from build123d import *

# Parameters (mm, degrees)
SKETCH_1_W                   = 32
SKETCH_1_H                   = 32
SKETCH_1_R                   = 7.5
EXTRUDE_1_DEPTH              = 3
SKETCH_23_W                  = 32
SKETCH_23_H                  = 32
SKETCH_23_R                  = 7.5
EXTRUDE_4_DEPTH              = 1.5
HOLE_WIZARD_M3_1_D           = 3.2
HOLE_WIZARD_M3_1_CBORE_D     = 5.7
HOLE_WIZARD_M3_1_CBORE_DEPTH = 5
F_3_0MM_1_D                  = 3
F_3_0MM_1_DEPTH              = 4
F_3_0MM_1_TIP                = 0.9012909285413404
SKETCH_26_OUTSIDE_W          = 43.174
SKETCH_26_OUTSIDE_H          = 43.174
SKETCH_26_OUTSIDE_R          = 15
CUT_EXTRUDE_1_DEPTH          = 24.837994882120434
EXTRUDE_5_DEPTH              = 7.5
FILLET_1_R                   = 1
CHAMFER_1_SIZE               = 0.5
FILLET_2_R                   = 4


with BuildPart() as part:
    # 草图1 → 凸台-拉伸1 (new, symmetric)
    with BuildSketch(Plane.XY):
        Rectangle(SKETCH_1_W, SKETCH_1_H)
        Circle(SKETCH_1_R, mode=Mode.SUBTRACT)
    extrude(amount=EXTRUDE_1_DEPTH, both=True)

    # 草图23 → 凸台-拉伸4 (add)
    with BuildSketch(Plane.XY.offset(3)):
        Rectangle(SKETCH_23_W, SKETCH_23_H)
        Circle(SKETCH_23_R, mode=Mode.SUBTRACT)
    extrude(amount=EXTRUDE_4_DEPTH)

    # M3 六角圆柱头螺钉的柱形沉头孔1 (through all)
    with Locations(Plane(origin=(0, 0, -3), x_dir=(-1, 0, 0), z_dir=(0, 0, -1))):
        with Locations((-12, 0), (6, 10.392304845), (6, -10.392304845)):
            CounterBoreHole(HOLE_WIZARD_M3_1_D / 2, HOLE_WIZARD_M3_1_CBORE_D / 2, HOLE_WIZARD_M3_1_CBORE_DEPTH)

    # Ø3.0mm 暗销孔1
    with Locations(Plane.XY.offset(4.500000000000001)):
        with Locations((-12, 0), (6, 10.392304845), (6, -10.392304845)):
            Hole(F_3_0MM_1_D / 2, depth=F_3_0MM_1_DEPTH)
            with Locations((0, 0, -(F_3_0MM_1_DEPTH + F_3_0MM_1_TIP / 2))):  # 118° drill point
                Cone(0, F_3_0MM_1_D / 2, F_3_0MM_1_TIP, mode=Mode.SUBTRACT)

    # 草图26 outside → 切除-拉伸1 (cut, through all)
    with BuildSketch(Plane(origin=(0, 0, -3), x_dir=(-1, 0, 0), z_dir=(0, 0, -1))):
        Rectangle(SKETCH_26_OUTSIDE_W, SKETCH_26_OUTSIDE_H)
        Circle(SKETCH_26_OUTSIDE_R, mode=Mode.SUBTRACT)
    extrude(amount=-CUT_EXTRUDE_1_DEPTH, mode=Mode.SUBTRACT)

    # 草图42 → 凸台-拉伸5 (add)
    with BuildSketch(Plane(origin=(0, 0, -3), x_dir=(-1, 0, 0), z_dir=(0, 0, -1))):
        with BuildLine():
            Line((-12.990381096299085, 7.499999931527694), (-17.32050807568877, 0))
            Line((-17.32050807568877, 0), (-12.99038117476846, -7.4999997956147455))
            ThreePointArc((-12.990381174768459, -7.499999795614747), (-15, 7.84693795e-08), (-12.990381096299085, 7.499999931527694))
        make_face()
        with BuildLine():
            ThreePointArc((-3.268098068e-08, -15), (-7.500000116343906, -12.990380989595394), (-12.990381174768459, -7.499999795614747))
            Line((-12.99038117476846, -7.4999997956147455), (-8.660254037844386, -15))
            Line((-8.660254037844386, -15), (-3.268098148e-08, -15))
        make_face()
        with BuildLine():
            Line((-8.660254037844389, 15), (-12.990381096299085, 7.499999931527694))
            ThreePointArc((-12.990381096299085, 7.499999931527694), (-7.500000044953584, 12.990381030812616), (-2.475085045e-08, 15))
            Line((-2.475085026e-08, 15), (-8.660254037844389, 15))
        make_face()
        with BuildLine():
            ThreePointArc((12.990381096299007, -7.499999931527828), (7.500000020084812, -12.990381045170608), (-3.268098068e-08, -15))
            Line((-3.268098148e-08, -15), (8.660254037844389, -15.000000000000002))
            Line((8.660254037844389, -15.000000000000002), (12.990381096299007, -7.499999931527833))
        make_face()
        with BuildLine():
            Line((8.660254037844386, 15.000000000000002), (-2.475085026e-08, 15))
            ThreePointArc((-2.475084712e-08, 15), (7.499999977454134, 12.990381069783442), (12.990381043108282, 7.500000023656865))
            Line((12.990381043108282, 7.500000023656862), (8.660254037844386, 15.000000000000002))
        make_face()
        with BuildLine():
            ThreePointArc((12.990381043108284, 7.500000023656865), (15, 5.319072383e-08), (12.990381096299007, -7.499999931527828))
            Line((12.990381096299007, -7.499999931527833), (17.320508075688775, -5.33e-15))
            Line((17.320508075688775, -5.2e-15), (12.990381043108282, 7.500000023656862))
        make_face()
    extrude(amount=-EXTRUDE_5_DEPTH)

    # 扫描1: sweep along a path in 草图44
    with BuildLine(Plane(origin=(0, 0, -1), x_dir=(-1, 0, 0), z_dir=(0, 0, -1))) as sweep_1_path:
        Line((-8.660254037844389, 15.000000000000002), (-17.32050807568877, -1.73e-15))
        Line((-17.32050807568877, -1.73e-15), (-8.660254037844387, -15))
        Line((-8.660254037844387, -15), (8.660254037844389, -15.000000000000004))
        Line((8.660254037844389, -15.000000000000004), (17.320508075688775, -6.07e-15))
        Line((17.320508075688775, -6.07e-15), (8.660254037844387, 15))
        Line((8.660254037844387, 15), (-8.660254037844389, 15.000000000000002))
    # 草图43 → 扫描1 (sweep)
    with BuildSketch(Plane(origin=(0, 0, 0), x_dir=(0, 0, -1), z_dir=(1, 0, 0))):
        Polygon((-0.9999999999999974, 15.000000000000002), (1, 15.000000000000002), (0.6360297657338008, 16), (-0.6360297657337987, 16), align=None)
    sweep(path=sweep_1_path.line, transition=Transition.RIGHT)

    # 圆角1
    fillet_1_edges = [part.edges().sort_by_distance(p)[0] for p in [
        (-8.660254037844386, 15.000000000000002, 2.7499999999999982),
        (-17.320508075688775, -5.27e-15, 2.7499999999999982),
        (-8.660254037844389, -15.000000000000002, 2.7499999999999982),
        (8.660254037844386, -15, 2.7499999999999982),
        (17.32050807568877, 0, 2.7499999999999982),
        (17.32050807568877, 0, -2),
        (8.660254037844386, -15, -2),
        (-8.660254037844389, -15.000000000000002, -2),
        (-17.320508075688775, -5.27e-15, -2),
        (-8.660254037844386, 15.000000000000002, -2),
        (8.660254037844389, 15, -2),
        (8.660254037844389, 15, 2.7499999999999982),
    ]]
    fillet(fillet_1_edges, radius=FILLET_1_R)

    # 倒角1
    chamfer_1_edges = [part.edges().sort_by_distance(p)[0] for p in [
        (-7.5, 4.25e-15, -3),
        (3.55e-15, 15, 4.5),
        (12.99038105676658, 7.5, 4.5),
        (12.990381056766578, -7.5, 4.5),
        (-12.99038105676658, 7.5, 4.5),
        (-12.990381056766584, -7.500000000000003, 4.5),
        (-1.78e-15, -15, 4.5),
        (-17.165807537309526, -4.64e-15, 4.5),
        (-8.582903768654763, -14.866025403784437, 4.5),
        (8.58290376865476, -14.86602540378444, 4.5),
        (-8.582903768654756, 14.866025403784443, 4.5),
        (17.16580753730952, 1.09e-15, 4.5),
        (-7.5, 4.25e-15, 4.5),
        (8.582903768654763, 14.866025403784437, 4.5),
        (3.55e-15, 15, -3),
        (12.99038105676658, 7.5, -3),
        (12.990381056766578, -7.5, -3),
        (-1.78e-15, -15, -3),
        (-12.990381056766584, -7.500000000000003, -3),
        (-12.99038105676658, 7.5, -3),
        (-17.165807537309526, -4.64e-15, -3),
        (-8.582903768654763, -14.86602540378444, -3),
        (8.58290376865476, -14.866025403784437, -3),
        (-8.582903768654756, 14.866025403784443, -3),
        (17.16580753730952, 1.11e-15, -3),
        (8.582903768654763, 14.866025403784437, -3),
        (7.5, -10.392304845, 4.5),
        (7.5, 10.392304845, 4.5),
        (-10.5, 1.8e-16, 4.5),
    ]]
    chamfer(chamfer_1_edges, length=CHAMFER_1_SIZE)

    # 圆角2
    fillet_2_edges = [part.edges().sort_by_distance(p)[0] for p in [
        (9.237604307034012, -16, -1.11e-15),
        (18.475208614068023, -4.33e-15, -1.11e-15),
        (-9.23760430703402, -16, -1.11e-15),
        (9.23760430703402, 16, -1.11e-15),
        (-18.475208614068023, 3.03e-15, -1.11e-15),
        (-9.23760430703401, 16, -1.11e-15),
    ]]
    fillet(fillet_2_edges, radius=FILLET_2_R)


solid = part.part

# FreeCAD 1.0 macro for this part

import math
import FreeCAD as App
import Part
import Sketcher
from FreeCAD import Vector
Q = App.Units.Quantity


def edges_at(feature, points):
    """Names of the edges that pass closest to the given points."""
    edges = feature.Shape.Edges
    near = lambda p: min(range(len(edges)), key=lambda i: edges[i].distToShape(Part.Vertex(*p))[0])
    return sorted({f"Edge{near(p) + 1}" for p in points})

doc = App.newDocument("Part")
body = doc.addObject("PartDesign::Body", "Body")

# Sketch on XY plane
sketch1 = body.newObject("Sketcher::SketchObject", "Sketch")
sketch1.AttachmentSupport = (doc.getObject("XY_Plane"), [""])
sketch1.MapMode = "FlatFace"
sketch1.addGeometry(Part.LineSegment(Vector(-16, 16, 0), Vector(-16, -16, 0)), False)
sketch1.addGeometry(Part.LineSegment(Vector(-16, -16, 0), Vector(16, -16, 0)), False)
sketch1.addGeometry(Part.LineSegment(Vector(16, -16, 0), Vector(16, 16, 0)), False)
sketch1.addGeometry(Part.LineSegment(Vector(16, 16, 0), Vector(-16, 16, 0)), False)
sketch1.addGeometry(Part.Circle(Vector(0, 0, 0), Vector(0, 0, 1), 8), False)
sketch1.addConstraint(Sketcher.Constraint("Coincident", 0, 2, 1, 1))
sketch1.addConstraint(Sketcher.Constraint("Coincident", 1, 2, 2, 1))
sketch1.addConstraint(Sketcher.Constraint("Coincident", 2, 2, 3, 1))
sketch1.addConstraint(Sketcher.Constraint("Coincident", 3, 2, 0, 1))
sketch1.addConstraint(Sketcher.Constraint("Vertical", 0))
sketch1.addConstraint(Sketcher.Constraint("Horizontal", 1))
sketch1.addConstraint(Sketcher.Constraint("Vertical", 2))
sketch1.addConstraint(Sketcher.Constraint("Horizontal", 3))
sketch1.addConstraint(Sketcher.Constraint("Coincident", 4, 3, -1, 1))
sketch1.addConstraint(Sketcher.Constraint("Symmetric", 0, 2, 2, 2, -1, 1))
sketch1.addConstraint(Sketcher.Constraint("Equal", 3, 0))
sketch1.addConstraint(Sketcher.Constraint("Diameter", 4, 15.0))
sketch1.addConstraint(Sketcher.Constraint("DistanceX", 1, 1, 1, 2, 32.0))
pad1 = body.newObject("PartDesign::Pad", "Pad")
pad1.Profile = sketch1
pad1.Length = 6
pad1.Midplane = True

# Sketch on XY plane
sketch2 = body.newObject("Sketcher::SketchObject", "Sketch001")
sketch2.AttachmentSupport = (doc.getObject("XY_Plane"), [""])
sketch2.MapMode = "FlatFace"
sketch2.AttachmentOffset = App.Placement(Vector(0, 0, 3), App.Rotation())
sketch2.addGeometry(Part.LineSegment(Vector(-16, 16, 0), Vector(-16, -16, 0)), False)
sketch2.addGeometry(Part.LineSegment(Vector(-16, -16, 0), Vector(16, -16, 0)), False)
sketch2.addGeometry(Part.LineSegment(Vector(16, -16, 0), Vector(16, 16, 0)), False)
sketch2.addGeometry(Part.LineSegment(Vector(16, 16, 0), Vector(-16, 16, 0)), False)
sketch2.addGeometry(Part.Circle(Vector(0, 0, 0), Vector(0, 0, 1), 8), False)
sketch2.addConstraint(Sketcher.Constraint("Coincident", 0, 2, 1, 1))
sketch2.addConstraint(Sketcher.Constraint("Coincident", 1, 2, 2, 1))
sketch2.addConstraint(Sketcher.Constraint("Coincident", 2, 2, 3, 1))
sketch2.addConstraint(Sketcher.Constraint("Coincident", 3, 2, 0, 1))
sketch2.addConstraint(Sketcher.Constraint("Vertical", 0))
sketch2.addConstraint(Sketcher.Constraint("Horizontal", 1))
sketch2.addConstraint(Sketcher.Constraint("Vertical", 2))
sketch2.addConstraint(Sketcher.Constraint("Horizontal", 3))
sketch2.addConstraint(Sketcher.Constraint("Coincident", 4, 3, -1, 1))
sketch2.addConstraint(Sketcher.Constraint("Symmetric", 0, 2, 2, 2, -1, 1))
sketch2.addConstraint(Sketcher.Constraint("Equal", 3, 0))
sketch2.addConstraint(Sketcher.Constraint("Diameter", 4, 15.0))
sketch2.addConstraint(Sketcher.Constraint("DistanceX", 1, 1, 1, 2, 32.0))
pad2 = body.newObject("PartDesign::Pad", "Pad001")
pad2.Profile = sketch2
pad2.Length = 1.5

# Sketch on XY plane
sketch3 = body.newObject("Sketcher::SketchObject", "Sketch002")
sketch3.AttachmentSupport = (doc.getObject("XY_Plane"), [""])
sketch3.MapMode = "FlatFace"
sketch3.AttachmentOffset = App.Placement(Vector(0, 0, -3), App.Rotation())
sketch3.addGeometry(Part.Circle(Vector(12, 0, 0), Vector(0, 0, 1), 1.6), False)
sketch3.addGeometry(Part.Circle(Vector(-6, 10.4, 0), Vector(0, 0, 1), 1.6), False)
sketch3.addGeometry(Part.Circle(Vector(-6, -10.4, 0), Vector(0, 0, 1), 1.6), False)
sketch3.addConstraint(Sketcher.Constraint("Equal", 0, 1))
sketch3.addConstraint(Sketcher.Constraint("Equal", 1, 2))
sketch3.addConstraint(Sketcher.Constraint("Symmetric", 1, 3, 2, 3, -1))
sketch3.addConstraint(Sketcher.Constraint("PointOnObject", 0, 3, -1))
sketch3.addConstraint(Sketcher.Constraint("Diameter", 0, 3.2))
sketch3.addConstraint(Sketcher.Constraint("DistanceX", -1, 1, 0, 3, 12.0))
sketch3.addConstraint(Sketcher.Constraint("DistanceX", 1, 3, -1, 1, 6.0))
sketch3.addConstraint(Sketcher.Constraint("DistanceY", 2, 3, 1, 3, 20.78461))
doc.recompute()
hole = body.newObject("PartDesign::Hole", "Hole")
hole.Profile = sketch3
hole.ThreadType = "None"
hole.Diameter = 3.2
hole.DepthType = "ThroughAll"
hole.HoleCutType = "Counterbore"
hole.HoleCutDiameter = 5.7
hole.HoleCutDepth = 5
hole.Reversed = True

# Sketch on XY plane
sketch4 = body.newObject("Sketcher::SketchObject", "Sketch003")
sketch4.AttachmentSupport = (doc.getObject("XY_Plane"), [""])
sketch4.MapMode = "FlatFace"
sketch4.AttachmentOffset = App.Placement(Vector(0, 0, 4.5), App.Rotation())
sketch4.addGeometry(Part.Circle(Vector(-12, 0, 0), Vector(0, 0, 1), 1.5), False)
sketch4.addGeometry(Part.Circle(Vector(6, 10.4, 0), Vector(0, 0, 1), 1.5), False)
sketch4.addGeometry(Part.Circle(Vector(6, -10.4, 0), Vector(0, 0, 1), 1.5), False)
sketch4.addConstraint(Sketcher.Constraint("Equal", 0, 1))
sketch4.addConstraint(Sketcher.Constraint("Equal", 1, 2))
sketch4.addConstraint(Sketcher.Constraint("Symmetric", 1, 3, 2, 3, -1))
sketch4.addConstraint(Sketcher.Constraint("PointOnObject", 0, 3, -1))
sketch4.addConstraint(Sketcher.Constraint("Diameter", 0, 3.0))
sketch4.addConstraint(Sketcher.Constraint("DistanceX", 0, 3, -1, 1, 12.0))
sketch4.addConstraint(Sketcher.Constraint("DistanceX", -1, 1, 1, 3, 6.0))
sketch4.addConstraint(Sketcher.Constraint("DistanceY", 2, 3, 1, 3, 20.78461))
doc.recompute()
hole2 = body.newObject("PartDesign::Hole", "Hole001")
hole2.Profile = sketch4
hole2.ThreadType = "None"
hole2.Diameter = 3
hole2.DepthType = "Dimension"
hole2.Depth = 4
hole2.DrillPoint = "Angled"
hole2.DrillPointAngle = 118

# Sketch on XY plane
sketch5 = body.newObject("Sketcher::SketchObject", "Sketch004")
sketch5.AttachmentSupport = (doc.getObject("XY_Plane"), [""])
sketch5.MapMode = "FlatFace"
sketch5.AttachmentOffset = App.Placement(Vector(0, 0, -3), App.Rotation())
sketch5.addGeometry(Part.LineSegment(Vector(22, 22, 0), Vector(22, -22, 0)), False)
sketch5.addGeometry(Part.LineSegment(Vector(22, -22, 0), Vector(-22, -22, 0)), False)
sketch5.addGeometry(Part.LineSegment(Vector(-22, -22, 0), Vector(-22, 22, 0)), False)
sketch5.addGeometry(Part.LineSegment(Vector(-22, 22, 0), Vector(22, 22, 0)), False)
sketch5.addGeometry(Part.Circle(Vector(0, 0, 0), Vector(0, 0, 1), 15), False)
sketch5.addConstraint(Sketcher.Constraint("Coincident", 0, 2, 1, 1))
sketch5.addConstraint(Sketcher.Constraint("Coincident", 1, 2, 2, 1))
sketch5.addConstraint(Sketcher.Constraint("Coincident", 2, 2, 3, 1))
sketch5.addConstraint(Sketcher.Constraint("Coincident", 3, 2, 0, 1))
sketch5.addConstraint(Sketcher.Constraint("Vertical", 0))
sketch5.addConstraint(Sketcher.Constraint("Horizontal", 1))
sketch5.addConstraint(Sketcher.Constraint("Vertical", 2))
sketch5.addConstraint(Sketcher.Constraint("Horizontal", 3))
sketch5.addConstraint(Sketcher.Constraint("Coincident", 4, 3, -1, 1))
sketch5.addConstraint(Sketcher.Constraint("Symmetric", 0, 2, 2, 2, -1, 1))
sketch5.addConstraint(Sketcher.Constraint("Equal", 3, 0))
sketch5.addConstraint(Sketcher.Constraint("Diameter", 4, 30.0))
sketch5.addConstraint(Sketcher.Constraint("DistanceX", 1, 2, 1, 1, 43.174))
pocket1 = body.newObject("PartDesign::Pocket", "Pocket")
pocket1.Profile = sketch5
pocket1.Type = "ThroughAll"
pocket1.Reversed = True

# Sketch on XY plane
sketch6 = body.newObject("Sketcher::SketchObject", "Sketch005")
sketch6.AttachmentSupport = (doc.getObject("XY_Plane"), [""])
sketch6.MapMode = "FlatFace"
sketch6.AttachmentOffset = App.Placement(Vector(0, 0, -3), App.Rotation())
sketch6.addGeometry(Part.LineSegment(Vector(13, 7, 0), Vector(17, 0, 0)), False)
sketch6.addGeometry(Part.LineSegment(Vector(17, 0, 0), Vector(13, -7, 0)), False)
sketch6.addGeometry(Part.ArcOfCircle(Part.Circle(Vector(0, 0, 0), Vector(0, 0, 1), 15), math.radians(-30), math.radians(30)), False)
sketch6.addGeometry(Part.ArcOfCircle(Part.Circle(Vector(0, 0, 0), Vector(0, 0, 1), 15), math.radians(-90), math.radians(-30)), False)
sketch6.addGeometry(Part.LineSegment(Vector(13, -7, 0), Vector(9, -15, 0)), False)
sketch6.addGeometry(Part.LineSegment(Vector(9, -15, 0), Vector(0, -15, 0)), False)
sketch6.addGeometry(Part.LineSegment(Vector(9, 15, 0), Vector(13, 7, 0)), False)
sketch6.addGeometry(Part.ArcOfCircle(Part.Circle(Vector(0, 0, 0), Vector(0, 0, 1), 15), math.radians(30), math.radians(90)), False)
sketch6.addGeometry(Part.LineSegment(Vector(0, 15, 0), Vector(9, 15, 0)), False)
sketch6.addGeometry(Part.ArcOfCircle(Part.Circle(Vector(0, 0, 0), Vector(0, 0, 1), 15), math.radians(-150), math.radians(-90)), False)
sketch6.addGeometry(Part.LineSegment(Vector(0, -15, 0), Vector(-9, -15, 0)), False)
sketch6.addGeometry(Part.LineSegment(Vector(-9, -15, 0), Vector(-13, -7, 0)), False)
sketch6.addGeometry(Part.LineSegment(Vector(-9, 15, 0), Vector(0, 15, 0)), False)
sketch6.addGeometry(Part.ArcOfCircle(Part.Circle(Vector(0, 0, 0), Vector(0, 0, 1), 15), math.radians(90), math.radians(150)), False)
sketch6.addGeometry(Part.LineSegment(Vector(-13, 8, 0), Vector(-9, 15, 0)), False)
sketch6.addGeometry(Part.ArcOfCircle(Part.Circle(Vector(0, 0, 0), Vector(0, 0, 1), 15), math.radians(150), math.radians(210)), False)
sketch6.addGeometry(Part.LineSegment(Vector(-13, -7, 0), Vector(-17, 0, 0)), False)
sketch6.addGeometry(Part.LineSegment(Vector(-17, 0, 0), Vector(-13, 8, 0)), False)
sketch6.addConstraint(Sketcher.Constraint("Coincident", 0, 2, 1, 1))
sketch6.addConstraint(Sketcher.Constraint("Tangent", 1, 2, 2, 1))
sketch6.addConstraint(Sketcher.Constraint("Tangent", 2, 2, 0, 1))
sketch6.addConstraint(Sketcher.Constraint("Tangent", 3, 2, 4, 1))
sketch6.addConstraint(Sketcher.Constraint("Coincident", 4, 2, 5, 1))
sketch6.addConstraint(Sketcher.Constraint("Tangent", 5, 2, 3, 1))
sketch6.addConstraint(Sketcher.Constraint("Tangent", 6, 2, 7, 1))
sketch6.addConstraint(Sketcher.Constraint("Tangent", 7, 2, 8, 1))
sketch6.addConstraint(Sketcher.Constraint("Coincident", 8, 2, 6, 1))
sketch6.addConstraint(Sketcher.Constraint("Tangent", 9, 2, 10, 1))
sketch6.addConstraint(Sketcher.Constraint("Coincident", 10, 2, 11, 1))
sketch6.addConstraint(Sketcher.Constraint("Tangent", 11, 2, 9, 1))
sketch6.addConstraint(Sketcher.Constraint("Tangent", 12, 2, 13, 1))
sketch6.addConstraint(Sketcher.Constraint("Tangent", 13, 2, 14, 1))
sketch6.addConstraint(Sketcher.Constraint("Coincident", 14, 2, 12, 1))
sketch6.addConstraint(Sketcher.Constraint("Tangent", 15, 2, 16, 1))
sketch6.addConstraint(Sketcher.Constraint("Coincident", 16, 2, 17, 1))
sketch6.addConstraint(Sketcher.Constraint("Tangent", 17, 2, 15, 1))
sketch6.addConstraint(Sketcher.Constraint("Horizontal", 5))
sketch6.addConstraint(Sketcher.Constraint("Horizontal", 8))
sketch6.addConstraint(Sketcher.Constraint("Horizontal", 10))
sketch6.addConstraint(Sketcher.Constraint("Horizontal", 12))
sketch6.addConstraint(Sketcher.Constraint("Coincident", 2, 3, -1, 1))
sketch6.addConstraint(Sketcher.Constraint("Coincident", 3, 3, -1, 1))
sketch6.addConstraint(Sketcher.Constraint("Coincident", 7, 3, -1, 1))
sketch6.addConstraint(Sketcher.Constraint("Coincident", 9, 3, -1, 1))
sketch6.addConstraint(Sketcher.Constraint("Coincident", 13, 3, -1, 1))
sketch6.addConstraint(Sketcher.Constraint("Coincident", 15, 3, -1, 1))
sketch6.addConstraint(Sketcher.Constraint("Coincident", 3, 2, 1, 2))
sketch6.addConstraint(Sketcher.Constraint("Coincident", 6, 2, 2, 2))
sketch6.addConstraint(Sketcher.Constraint("Coincident", 15, 2, 11, 2))
sketch6.addConstraint(Sketcher.Constraint("Coincident", 17, 2, 13, 2))
sketch6.addConstraint(Sketcher.Constraint("Equal", 7, 9))
sketch6.addConstraint(Sketcher.Constraint("Symmetric", 0, 2, 16, 2, -1, 1))
sketch6.addConstraint(Sketcher.Constraint("PointOnObject", 0, 2, -1))
sketch6.addConstraint(Sketcher.Constraint("Equal", 1, 4))
sketch6.addConstraint(Sketcher.Constraint("Radius", 2, 15.0))
pad3 = body.newObject("PartDesign::Pad", "Pad002")
pad3.Profile = sketch6
pad3.Length = 7.5

# Sketch on YZ plane
sketch7 = body.newObject("Sketcher::SketchObject", "Sketch006")
sketch7.AttachmentSupport = (doc.getObject("YZ_Plane"), [""])
sketch7.MapMode = "FlatFace"
sketch7.addGeometry(Part.LineSegment(Vector(15, 1, 0), Vector(15, -1, 0)), False)
sketch7.addGeometry(Part.LineSegment(Vector(15, -1, 0), Vector(16, -0.6, 0)), False)
sketch7.addGeometry(Part.LineSegment(Vector(16, -0.6, 0), Vector(16, 0.6, 0)), False)
sketch7.addGeometry(Part.LineSegment(Vector(16, 0.6, 0), Vector(15, 1, 0)), False)
sketch7.addConstraint(Sketcher.Constraint("Coincident", 0, 2, 1, 1))
sketch7.addConstraint(Sketcher.Constraint("Coincident", 1, 2, 2, 1))
sketch7.addConstraint(Sketcher.Constraint("Coincident", 2, 2, 3, 1))
sketch7.addConstraint(Sketcher.Constraint("Coincident", 3, 2, 0, 1))
sketch7.addConstraint(Sketcher.Constraint("Vertical", 0))
sketch7.addConstraint(Sketcher.Constraint("Vertical", 2))
sketch7.addConstraint(Sketcher.Constraint("Equal", 1, 3))
sketch7.addConstraint(Sketcher.Constraint("DistanceY", 0, 2, 0, 1, 2.0))
sketch7.addConstraint(Sketcher.Constraint("Angle", 1, Q("20 deg")))
sketch7.addConstraint(Sketcher.Constraint("DistanceX", -1, 1, 0, 2, 15.0))
sketch7.addConstraint(Sketcher.Constraint("DistanceY", 0, 2, -1, 1, 1.0))
sketch7.addConstraint(Sketcher.Constraint("DistanceX", -1, 1, 1, 2, 16.0))

# Sketch on XY plane
sketch8 = body.newObject("Sketcher::SketchObject", "Sketch007")
sketch8.AttachmentSupport = (doc.getObject("XY_Plane"), [""])
sketch8.MapMode = "FlatFace"
sketch8.AttachmentOffset = App.Placement(Vector(0, 0, -1), App.Rotation())
sketch8.addGeometry(Part.LineSegment(Vector(9, 15, 0), Vector(17, 0, 0)), False)
sketch8.addGeometry(Part.LineSegment(Vector(17, 0, 0), Vector(9, -15, 0)), False)
sketch8.addGeometry(Part.LineSegment(Vector(9, -15, 0), Vector(-9, -15, 0)), False)
sketch8.addGeometry(Part.LineSegment(Vector(-9, -15, 0), Vector(-17, 0, 0)), False)
sketch8.addGeometry(Part.LineSegment(Vector(-17, 0, 0), Vector(-9, 15, 0)), False)
sketch8.addGeometry(Part.LineSegment(Vector(-9, 15, 0), Vector(9, 15, 0)), False)
sketch8.addConstraint(Sketcher.Constraint("Coincident", 0, 2, 1, 1))
sketch8.addConstraint(Sketcher.Constraint("Coincident", 1, 2, 2, 1))
sketch8.addConstraint(Sketcher.Constraint("Coincident", 2, 2, 3, 1))
sketch8.addConstraint(Sketcher.Constraint("Coincident", 3, 2, 4, 1))
sketch8.addConstraint(Sketcher.Constraint("Coincident", 4, 2, 5, 1))
sketch8.addConstraint(Sketcher.Constraint("Coincident", 5, 2, 0, 1))
sketch8.addConstraint(Sketcher.Constraint("Horizontal", 2))
sketch8.addConstraint(Sketcher.Constraint("Horizontal", 5))
sketch8.addConstraint(Sketcher.Constraint("Symmetric", 0, 2, 3, 2, -1, 1))
sketch8.addConstraint(Sketcher.Constraint("Symmetric", 1, 2, 4, 2, -1, 1))
sketch8.addConstraint(Sketcher.Constraint("PointOnObject", 0, 2, -1))
sketch8.addConstraint(Sketcher.Constraint("Parallel", 0, 3))
sketch8.addConstraint(Sketcher.Constraint("Vertical", 2, 2, 4, 2))
sketch8.addConstraint(Sketcher.Constraint("Angle", 0, Q("-60 deg")))
sketch8.addConstraint(Sketcher.Constraint("DistanceY", 1, 2, -1, 1, 15.0))
sketch8.addConstraint(Sketcher.Constraint("DistanceX", 2, 2, 2, 1, 17.320508))
doc.recompute()

additivepipe = body.newObject("PartDesign::AdditivePipe", "AdditivePipe")
additivepipe.Profile = sketch7
additivepipe.Spine = (sketch8, ["Edge1", "Edge2", "Edge3", "Edge4", "Edge5", "Edge6"])
additivepipe.Transition = "Right corner"
doc.recompute()

fillet = body.newObject("PartDesign::Fillet", "Fillet")
fillet.Base = (additivepipe, edges_at(additivepipe, [
    (-8.66, 15, 2.75),
    (-17.321, 0, 2.75),
    (-8.66, -15, 2.75),
    (8.66, -15, 2.75),
    (17.321, 0, 2.75),
    (17.321, 0, -2),
    (8.66, -15, -2),
    (-8.66, -15, -2),
    (-17.321, 0, -2),
    (-8.66, 15, -2),
    (8.66, 15, -2),
    (8.66, 15, 2.75),
]))
fillet.Radius = 1
doc.recompute()

chamfer = body.newObject("PartDesign::Chamfer", "Chamfer")
chamfer.Base = (fillet, edges_at(fillet, [
    (-7.5, 0, -3),
    (0, 15, 4.5),
    (12.99, 7.5, 4.5),
    (12.99, -7.5, 4.5),
    (-12.99, 7.5, 4.5),
    (-12.99, -7.5, 4.5),
    (0, -15, 4.5),
    (-17.166, 0, 4.5),
    (-8.583, -14.866, 4.5),
    (8.583, -14.866, 4.5),
    (-8.583, 14.866, 4.5),
    (17.166, 0, 4.5),
    (-7.5, 0, 4.5),
    (8.583, 14.866, 4.5),
    (0, 15, -3),
    (12.99, 7.5, -3),
    (12.99, -7.5, -3),
    (0, -15, -3),
    (-12.99, -7.5, -3),
    (-12.99, 7.5, -3),
    (-17.166, 0, -3),
    (-8.583, -14.866, -3),
    (8.583, -14.866, -3),
    (-8.583, 14.866, -3),
    (17.166, 0, -3),
    (8.583, 14.866, -3),
    (7.5, -10.392, 4.5),
    (7.5, 10.392, 4.5),
    (-10.5, 0, 4.5),
]))
chamfer.Size = 0.5
doc.recompute()

fillet2 = body.newObject("PartDesign::Fillet", "Fillet001")
fillet2.Base = (chamfer, edges_at(chamfer, [
    (9.238, -16, 0),
    (18.475, 0, 0),
    (-9.238, -16, 0),
    (9.238, 16, 0),
    (-18.475, 0, 0),
    (-9.238, 16, 0),
]))
fillet2.Radius = 4

doc.recompute()
